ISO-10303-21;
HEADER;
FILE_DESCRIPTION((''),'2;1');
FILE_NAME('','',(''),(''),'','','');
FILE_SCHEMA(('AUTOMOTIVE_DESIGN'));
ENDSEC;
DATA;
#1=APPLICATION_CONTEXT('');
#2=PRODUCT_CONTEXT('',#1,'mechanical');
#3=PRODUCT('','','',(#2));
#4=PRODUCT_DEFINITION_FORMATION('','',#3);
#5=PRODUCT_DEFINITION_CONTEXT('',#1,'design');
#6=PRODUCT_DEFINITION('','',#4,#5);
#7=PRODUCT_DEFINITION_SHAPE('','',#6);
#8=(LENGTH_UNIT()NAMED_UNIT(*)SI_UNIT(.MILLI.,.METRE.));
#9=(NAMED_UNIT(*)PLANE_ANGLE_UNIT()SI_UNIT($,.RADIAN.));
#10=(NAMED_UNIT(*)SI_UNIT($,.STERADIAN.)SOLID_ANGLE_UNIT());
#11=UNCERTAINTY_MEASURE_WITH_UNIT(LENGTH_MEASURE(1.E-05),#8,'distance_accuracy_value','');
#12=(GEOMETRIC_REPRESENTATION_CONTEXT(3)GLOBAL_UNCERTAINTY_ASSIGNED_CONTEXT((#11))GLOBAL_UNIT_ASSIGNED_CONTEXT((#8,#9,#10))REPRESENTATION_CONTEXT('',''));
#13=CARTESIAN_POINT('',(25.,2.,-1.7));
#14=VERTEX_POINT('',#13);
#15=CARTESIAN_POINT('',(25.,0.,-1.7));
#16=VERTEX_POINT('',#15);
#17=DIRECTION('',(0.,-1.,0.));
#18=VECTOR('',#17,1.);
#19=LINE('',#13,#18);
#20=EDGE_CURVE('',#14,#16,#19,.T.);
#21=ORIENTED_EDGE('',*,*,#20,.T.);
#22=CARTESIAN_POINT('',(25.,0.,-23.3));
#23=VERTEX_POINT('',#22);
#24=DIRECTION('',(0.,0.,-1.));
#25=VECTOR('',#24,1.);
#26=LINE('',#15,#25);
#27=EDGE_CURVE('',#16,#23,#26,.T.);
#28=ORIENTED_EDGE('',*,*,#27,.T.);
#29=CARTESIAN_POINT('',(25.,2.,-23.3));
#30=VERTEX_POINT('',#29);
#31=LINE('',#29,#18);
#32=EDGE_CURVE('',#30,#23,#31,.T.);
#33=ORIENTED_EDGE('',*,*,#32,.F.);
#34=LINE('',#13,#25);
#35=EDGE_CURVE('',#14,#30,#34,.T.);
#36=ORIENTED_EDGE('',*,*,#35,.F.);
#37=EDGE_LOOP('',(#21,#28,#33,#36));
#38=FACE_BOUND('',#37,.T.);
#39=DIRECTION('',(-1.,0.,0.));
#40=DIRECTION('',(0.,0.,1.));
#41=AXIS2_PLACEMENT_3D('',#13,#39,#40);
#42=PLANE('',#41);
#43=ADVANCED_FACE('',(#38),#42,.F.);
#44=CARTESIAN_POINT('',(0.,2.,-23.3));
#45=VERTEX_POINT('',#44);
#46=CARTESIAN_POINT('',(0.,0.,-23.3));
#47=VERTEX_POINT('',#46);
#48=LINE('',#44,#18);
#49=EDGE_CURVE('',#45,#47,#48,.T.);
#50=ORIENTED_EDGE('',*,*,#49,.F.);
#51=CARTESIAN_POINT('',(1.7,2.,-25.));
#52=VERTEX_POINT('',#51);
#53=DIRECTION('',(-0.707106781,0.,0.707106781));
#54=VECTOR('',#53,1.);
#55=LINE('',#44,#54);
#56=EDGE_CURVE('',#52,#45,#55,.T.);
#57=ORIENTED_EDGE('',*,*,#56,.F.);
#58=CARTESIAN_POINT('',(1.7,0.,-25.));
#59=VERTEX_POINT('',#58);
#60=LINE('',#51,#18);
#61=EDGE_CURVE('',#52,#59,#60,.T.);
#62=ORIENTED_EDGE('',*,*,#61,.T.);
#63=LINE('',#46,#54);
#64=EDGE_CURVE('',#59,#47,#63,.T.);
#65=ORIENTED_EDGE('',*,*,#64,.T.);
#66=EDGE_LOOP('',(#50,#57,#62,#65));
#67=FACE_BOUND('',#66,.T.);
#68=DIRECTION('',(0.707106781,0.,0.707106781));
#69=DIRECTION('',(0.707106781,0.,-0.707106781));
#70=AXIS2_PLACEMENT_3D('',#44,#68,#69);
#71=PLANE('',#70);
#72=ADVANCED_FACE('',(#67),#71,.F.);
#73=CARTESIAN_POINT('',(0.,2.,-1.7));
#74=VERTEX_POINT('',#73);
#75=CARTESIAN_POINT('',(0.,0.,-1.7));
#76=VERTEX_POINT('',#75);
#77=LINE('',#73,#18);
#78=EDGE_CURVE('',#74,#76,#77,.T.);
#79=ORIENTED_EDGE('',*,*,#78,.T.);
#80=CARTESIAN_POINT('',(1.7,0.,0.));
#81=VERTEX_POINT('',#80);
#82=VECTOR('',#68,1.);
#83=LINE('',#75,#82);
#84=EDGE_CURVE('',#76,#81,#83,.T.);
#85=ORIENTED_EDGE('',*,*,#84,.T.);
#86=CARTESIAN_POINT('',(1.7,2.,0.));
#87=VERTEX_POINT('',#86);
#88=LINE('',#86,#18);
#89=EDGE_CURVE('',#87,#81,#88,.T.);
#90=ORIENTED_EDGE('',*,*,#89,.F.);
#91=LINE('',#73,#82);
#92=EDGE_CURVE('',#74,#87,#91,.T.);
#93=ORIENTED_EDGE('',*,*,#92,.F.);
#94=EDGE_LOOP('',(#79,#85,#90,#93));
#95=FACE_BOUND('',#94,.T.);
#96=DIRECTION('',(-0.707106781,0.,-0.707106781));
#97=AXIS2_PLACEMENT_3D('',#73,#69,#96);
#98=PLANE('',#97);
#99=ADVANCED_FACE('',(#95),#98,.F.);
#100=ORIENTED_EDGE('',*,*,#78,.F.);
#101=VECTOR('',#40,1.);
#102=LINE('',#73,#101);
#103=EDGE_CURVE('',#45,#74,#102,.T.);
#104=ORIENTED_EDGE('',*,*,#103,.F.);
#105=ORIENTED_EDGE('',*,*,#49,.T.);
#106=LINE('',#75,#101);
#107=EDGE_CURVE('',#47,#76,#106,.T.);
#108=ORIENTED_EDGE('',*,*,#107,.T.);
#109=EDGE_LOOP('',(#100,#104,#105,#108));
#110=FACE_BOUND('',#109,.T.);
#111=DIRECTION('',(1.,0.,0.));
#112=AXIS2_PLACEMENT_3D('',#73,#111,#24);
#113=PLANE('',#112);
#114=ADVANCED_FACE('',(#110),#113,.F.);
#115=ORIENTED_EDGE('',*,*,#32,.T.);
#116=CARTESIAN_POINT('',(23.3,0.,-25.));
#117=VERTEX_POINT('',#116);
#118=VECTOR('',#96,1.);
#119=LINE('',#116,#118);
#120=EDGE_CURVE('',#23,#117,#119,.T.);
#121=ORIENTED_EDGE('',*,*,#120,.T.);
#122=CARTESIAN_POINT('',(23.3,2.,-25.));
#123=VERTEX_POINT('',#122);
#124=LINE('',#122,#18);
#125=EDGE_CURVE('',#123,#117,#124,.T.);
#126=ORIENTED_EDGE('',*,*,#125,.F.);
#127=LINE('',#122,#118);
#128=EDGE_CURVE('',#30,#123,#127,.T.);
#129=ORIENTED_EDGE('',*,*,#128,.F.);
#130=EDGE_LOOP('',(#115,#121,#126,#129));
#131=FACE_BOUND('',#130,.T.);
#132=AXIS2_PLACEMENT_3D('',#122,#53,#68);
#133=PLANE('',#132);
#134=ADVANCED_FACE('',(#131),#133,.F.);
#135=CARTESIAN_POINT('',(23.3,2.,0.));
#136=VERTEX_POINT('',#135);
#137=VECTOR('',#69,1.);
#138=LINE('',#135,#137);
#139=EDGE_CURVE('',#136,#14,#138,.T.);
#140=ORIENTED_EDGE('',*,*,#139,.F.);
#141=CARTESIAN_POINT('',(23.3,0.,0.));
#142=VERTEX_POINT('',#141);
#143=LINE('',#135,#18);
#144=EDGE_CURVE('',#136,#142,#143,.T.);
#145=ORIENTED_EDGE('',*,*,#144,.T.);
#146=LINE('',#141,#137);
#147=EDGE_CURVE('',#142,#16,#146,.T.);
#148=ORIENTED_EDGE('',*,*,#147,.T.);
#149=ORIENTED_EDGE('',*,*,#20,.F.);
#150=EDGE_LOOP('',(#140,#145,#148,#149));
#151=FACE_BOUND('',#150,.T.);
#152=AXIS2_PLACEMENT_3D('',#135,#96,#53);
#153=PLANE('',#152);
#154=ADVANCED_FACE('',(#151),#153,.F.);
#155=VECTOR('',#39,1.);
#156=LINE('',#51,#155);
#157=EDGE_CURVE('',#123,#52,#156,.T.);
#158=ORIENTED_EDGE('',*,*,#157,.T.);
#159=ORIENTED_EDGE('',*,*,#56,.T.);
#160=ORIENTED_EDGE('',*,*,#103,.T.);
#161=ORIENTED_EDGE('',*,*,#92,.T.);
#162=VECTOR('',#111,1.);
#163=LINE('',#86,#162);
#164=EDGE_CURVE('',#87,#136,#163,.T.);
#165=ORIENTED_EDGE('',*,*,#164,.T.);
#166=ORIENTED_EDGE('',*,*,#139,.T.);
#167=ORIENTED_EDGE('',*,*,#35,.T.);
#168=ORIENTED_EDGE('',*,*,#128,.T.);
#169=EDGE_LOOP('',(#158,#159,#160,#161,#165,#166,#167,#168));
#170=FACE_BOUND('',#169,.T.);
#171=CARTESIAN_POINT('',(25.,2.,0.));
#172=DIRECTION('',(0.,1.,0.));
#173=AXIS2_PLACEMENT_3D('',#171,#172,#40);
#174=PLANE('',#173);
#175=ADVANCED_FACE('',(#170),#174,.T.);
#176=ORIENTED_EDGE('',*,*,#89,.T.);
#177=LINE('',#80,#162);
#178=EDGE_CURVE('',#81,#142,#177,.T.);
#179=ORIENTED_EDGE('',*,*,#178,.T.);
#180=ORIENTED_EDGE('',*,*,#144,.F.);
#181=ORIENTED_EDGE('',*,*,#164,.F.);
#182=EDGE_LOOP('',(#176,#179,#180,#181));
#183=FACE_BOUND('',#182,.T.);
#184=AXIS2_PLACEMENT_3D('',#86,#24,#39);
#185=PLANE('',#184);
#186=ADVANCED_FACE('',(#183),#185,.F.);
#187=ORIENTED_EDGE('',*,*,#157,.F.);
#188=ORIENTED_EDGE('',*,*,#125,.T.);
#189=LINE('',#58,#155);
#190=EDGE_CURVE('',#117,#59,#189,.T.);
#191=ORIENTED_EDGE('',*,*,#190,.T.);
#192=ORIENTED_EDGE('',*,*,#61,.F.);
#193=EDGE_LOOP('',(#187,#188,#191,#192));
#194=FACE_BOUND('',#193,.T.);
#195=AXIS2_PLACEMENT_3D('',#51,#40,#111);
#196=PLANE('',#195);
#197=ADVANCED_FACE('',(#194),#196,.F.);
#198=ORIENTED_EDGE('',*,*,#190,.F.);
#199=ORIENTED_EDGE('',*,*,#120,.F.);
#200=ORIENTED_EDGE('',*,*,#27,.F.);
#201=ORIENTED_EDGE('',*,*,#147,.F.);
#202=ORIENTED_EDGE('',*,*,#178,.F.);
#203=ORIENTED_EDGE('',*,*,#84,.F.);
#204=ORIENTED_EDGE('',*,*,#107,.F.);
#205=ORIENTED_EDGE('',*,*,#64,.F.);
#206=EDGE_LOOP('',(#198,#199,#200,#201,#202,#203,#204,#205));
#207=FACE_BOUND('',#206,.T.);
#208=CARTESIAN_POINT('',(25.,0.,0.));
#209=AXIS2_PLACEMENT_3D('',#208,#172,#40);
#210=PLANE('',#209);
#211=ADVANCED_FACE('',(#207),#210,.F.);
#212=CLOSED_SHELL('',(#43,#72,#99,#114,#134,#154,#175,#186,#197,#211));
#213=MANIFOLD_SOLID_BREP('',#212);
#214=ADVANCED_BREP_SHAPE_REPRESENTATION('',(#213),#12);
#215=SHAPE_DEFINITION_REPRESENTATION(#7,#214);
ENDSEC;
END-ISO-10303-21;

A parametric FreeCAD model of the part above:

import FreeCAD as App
import Part
import Sketcher

V = App.Vector


def add_polygon(sketch, points):
    """Adds a closed chain of lines whose ends are joined by coincident constraints."""
    first, n = sketch.GeometryCount, len(points)
    for a, b in zip(points, points[1:] + points[:1]):
        sketch.addGeometry(Part.LineSegment(App.Vector(*a, 0), App.Vector(*b, 0)), False)
    for i in range(n):
        sketch.addConstraint(Sketcher.Constraint("Coincident", first + i, 2, first + (i + 1) % n, 1))

doc = App.newDocument("Part")
body = doc.addObject("PartDesign::Body", "Body")

# Sketch on XZ plane
sketch1 = body.newObject("Sketcher::SketchObject", "Sketch")
sketch1.AttachmentSupport = (doc.getObject("XZ_Plane"), [""])
sketch1.MapMode = "FlatFace"
add_polygon(sketch1, [(0, -1.7), (1.7, 0), (23.3, 0), (25, -1.7), (25, -23.3), (23.3, -25), (1.7, -25), (0, -23.3)])  # lines 0-7
sketch1.addConstraint(Sketcher.Constraint("Horizontal", 1))
sketch1.addConstraint(Sketcher.Constraint("Vertical", 3))
sketch1.addConstraint(Sketcher.Constraint("Horizontal", 5))
sketch1.addConstraint(Sketcher.Constraint("Vertical", 7))
sketch1.addConstraint(Sketcher.Constraint("PointOnObject", 0, 2, -1))
sketch1.addConstraint(Sketcher.Constraint("PointOnObject", 6, 2, -2))
sketch1.addConstraint(Sketcher.Constraint("Perpendicular", 0, 2))
sketch1.addConstraint(Sketcher.Constraint("Perpendicular", 2, 4))
sketch1.addConstraint(Sketcher.Constraint("Perpendicular", 4, 6))
sketch1.addConstraint(Sketcher.Constraint("Horizontal", 3, 2, 6, 2))
sketch1.addConstraint(Sketcher.Constraint("Horizontal", 2, 2, 7, 2))
sketch1.addConstraint(Sketcher.Constraint("Vertical", 1, 2, 4, 2))
sketch1.addConstraint(Sketcher.Constraint("Vertical", 0, 2, 5, 2))
sketch1.addConstraint(Sketcher.Constraint("Equal", 5, 3))
sketch1.addConstraint(Sketcher.Constraint("DistanceX", 1, 1, 1, 2, 21.6))
sketch1.addConstraint(Sketcher.Constraint("DistanceX", -1, 1, 2, 2, 25.0))
pad1 = body.newObject("PartDesign::Pad", "Pad")
pad1.Profile = sketch1
pad1.Length = 2
pad1.Reversed = True

doc.recompute()
